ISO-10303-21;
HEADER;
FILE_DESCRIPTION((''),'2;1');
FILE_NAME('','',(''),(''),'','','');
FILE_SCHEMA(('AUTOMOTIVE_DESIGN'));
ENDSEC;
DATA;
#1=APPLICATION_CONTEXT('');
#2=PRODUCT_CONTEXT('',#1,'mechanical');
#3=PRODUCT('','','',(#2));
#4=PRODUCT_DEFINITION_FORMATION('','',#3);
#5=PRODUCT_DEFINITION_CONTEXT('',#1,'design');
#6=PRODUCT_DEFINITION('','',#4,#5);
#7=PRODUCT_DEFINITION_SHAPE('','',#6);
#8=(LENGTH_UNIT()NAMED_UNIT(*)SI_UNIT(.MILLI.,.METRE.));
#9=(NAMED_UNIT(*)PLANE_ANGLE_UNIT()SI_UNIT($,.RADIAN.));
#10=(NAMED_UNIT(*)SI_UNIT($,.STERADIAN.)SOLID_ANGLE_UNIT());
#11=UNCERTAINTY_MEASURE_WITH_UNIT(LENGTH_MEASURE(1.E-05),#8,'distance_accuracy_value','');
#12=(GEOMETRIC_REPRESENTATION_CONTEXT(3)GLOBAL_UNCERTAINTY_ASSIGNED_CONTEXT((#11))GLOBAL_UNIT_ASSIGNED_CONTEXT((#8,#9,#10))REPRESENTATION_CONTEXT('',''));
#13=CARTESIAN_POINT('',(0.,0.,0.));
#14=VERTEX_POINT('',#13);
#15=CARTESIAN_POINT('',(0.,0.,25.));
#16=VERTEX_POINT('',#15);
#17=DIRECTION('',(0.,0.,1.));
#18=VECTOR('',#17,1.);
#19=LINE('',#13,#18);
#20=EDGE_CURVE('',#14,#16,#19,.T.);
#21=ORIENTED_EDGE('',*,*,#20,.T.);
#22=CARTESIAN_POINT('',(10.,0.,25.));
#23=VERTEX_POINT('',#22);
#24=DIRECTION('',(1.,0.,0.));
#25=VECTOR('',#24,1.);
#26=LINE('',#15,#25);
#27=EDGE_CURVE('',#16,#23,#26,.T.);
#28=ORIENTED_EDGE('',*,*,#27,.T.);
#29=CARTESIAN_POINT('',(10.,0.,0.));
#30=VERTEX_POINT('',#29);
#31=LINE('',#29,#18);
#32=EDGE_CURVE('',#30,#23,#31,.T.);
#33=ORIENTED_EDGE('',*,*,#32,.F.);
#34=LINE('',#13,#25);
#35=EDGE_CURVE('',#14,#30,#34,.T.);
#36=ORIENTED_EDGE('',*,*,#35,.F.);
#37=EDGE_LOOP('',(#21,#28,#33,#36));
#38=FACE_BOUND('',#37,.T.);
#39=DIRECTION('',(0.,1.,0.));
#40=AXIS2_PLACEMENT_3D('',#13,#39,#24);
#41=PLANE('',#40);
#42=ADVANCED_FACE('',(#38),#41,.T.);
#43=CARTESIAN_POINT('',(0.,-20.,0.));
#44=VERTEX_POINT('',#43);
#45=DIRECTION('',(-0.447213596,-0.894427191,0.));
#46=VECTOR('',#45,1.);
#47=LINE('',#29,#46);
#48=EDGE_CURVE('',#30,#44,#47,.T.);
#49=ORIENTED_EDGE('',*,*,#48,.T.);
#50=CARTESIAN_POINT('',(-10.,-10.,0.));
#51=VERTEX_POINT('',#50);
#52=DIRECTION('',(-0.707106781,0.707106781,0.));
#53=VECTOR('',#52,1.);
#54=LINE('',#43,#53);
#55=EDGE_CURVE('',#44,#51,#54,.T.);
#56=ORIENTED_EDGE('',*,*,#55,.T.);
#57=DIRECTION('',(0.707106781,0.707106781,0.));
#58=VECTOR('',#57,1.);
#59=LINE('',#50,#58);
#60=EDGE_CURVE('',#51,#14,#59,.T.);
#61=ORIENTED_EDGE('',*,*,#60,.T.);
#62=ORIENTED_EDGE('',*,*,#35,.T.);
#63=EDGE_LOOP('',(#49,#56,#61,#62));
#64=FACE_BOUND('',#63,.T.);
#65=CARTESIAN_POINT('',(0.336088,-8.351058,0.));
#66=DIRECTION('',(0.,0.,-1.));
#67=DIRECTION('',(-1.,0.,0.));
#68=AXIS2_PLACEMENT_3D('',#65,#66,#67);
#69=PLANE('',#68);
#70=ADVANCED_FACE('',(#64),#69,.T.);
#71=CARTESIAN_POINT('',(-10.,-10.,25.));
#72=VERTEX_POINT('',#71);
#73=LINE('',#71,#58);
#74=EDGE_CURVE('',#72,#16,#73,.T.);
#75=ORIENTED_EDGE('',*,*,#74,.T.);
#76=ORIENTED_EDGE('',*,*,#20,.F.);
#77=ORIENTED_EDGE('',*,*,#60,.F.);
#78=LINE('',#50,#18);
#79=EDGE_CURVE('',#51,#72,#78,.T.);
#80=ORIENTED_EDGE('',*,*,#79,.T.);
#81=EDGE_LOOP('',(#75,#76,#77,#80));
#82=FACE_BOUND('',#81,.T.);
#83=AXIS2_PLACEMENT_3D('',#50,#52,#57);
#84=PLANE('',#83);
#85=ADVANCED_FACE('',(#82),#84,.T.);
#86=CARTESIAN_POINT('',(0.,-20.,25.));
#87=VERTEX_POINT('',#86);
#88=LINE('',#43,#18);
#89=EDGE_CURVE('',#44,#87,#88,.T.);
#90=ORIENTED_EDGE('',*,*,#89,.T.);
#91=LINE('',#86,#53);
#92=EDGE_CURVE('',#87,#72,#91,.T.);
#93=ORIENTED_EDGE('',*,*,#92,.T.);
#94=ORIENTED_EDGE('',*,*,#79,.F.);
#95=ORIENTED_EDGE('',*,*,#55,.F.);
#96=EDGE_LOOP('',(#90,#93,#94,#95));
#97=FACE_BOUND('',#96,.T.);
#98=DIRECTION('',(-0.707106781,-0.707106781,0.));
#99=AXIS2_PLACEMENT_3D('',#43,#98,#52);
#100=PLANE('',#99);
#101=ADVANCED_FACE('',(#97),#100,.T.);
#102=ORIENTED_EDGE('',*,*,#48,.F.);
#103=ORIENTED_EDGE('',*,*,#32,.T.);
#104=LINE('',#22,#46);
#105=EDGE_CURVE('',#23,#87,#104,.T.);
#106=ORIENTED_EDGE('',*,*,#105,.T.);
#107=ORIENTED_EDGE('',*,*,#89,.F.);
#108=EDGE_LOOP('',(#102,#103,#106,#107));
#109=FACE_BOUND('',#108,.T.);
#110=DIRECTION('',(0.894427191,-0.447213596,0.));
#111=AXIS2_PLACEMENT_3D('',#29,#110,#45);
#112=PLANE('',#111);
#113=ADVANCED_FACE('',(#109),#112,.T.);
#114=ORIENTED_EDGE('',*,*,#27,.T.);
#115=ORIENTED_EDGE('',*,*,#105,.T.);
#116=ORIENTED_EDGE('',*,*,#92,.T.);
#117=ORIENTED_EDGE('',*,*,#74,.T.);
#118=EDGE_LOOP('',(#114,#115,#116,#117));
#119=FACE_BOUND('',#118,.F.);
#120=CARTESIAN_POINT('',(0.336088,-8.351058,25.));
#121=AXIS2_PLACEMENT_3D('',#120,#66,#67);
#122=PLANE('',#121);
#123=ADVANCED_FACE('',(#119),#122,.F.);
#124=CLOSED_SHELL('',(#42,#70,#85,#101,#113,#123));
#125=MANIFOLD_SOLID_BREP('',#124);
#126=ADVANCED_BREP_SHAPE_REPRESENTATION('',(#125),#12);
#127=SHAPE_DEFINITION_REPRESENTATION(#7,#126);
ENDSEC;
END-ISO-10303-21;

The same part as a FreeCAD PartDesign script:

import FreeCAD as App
import Part
import Sketcher

V = App.Vector
Q = App.Units.Quantity

doc = App.newDocument("Part")
body = doc.addObject("PartDesign::Body", "Body")

# Sketch on XY plane
sketch1 = body.newObject("Sketcher::SketchObject", "Sketch")
sketch1.AttachmentSupport = (doc.getObject("XY_Plane"), [""])
sketch1.MapMode = "FlatFace"
sketch1.addGeometry([
    Part.LineSegment(V(10, 0, 0), V(0, 0, 0)),
    Part.LineSegment(V(0, 0, 0), V(-10, -10, 0)),
    Part.LineSegment(V(-10, -10, 0), V(0, -20, 0)),
    Part.LineSegment(V(0, -20, 0), V(10, 0, 0)),
], False)
sketch1.addConstraint([
    Sketcher.Constraint("Coincident", 0, 2, 1, 1),
    Sketcher.Constraint("Coincident", 1, 2, 2, 1),
    Sketcher.Constraint("Coincident", 2, 2, 3, 1),
    Sketcher.Constraint("Coincident", 3, 2, 0, 1),
    Sketcher.Constraint("Horizontal", 0),
    Sketcher.Constraint("Coincident", 0, 2, -1, 1),
    Sketcher.Constraint("PointOnObject", 2, 2, -2),
    Sketcher.Constraint("Perpendicular", 1, 2),
    Sketcher.Constraint("Equal", 1, 2),
    Sketcher.Constraint("DistanceX", 0, 2, 0, 1, Q("10 mm")),
    Sketcher.Constraint("DistanceX", 1, 2, -1, 1, Q("10 mm")),
])
pad1 = body.newObject("PartDesign::Pad", "Pad")
pad1.Profile = sketch1
pad1.Length = 25

doc.recompute()
